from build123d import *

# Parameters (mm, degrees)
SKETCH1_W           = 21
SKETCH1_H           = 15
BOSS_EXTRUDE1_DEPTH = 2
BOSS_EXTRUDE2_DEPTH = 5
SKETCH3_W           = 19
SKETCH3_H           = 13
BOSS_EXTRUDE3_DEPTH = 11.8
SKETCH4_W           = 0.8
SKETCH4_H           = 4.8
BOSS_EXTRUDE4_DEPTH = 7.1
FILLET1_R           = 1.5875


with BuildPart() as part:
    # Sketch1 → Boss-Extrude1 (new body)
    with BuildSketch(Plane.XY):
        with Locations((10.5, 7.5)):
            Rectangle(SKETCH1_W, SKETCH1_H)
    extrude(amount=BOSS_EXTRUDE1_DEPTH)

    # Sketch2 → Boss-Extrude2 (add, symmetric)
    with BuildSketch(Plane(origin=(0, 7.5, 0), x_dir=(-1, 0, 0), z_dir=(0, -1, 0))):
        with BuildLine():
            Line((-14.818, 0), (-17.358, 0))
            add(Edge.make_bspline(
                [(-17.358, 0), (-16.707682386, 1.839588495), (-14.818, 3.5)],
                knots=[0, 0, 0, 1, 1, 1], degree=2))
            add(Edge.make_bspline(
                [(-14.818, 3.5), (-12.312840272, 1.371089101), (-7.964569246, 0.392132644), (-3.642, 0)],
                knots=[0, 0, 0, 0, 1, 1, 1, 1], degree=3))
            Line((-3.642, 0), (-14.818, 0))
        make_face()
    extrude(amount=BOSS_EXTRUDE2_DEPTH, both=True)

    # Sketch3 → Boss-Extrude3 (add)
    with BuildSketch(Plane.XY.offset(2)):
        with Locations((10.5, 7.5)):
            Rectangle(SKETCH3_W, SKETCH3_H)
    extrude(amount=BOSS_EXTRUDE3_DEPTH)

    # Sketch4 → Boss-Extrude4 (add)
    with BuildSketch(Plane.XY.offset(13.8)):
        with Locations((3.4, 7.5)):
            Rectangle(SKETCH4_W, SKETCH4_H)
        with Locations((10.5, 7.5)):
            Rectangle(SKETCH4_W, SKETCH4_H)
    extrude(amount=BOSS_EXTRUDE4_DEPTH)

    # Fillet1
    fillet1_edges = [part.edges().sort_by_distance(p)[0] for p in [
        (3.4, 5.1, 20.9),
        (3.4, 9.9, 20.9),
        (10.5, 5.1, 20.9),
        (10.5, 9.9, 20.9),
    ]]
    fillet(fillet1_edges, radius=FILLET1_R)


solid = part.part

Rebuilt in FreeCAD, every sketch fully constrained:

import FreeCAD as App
import Part
import Sketcher

V = App.Vector
Q = App.Units.Quantity


def edges_at(feature, points):
    """Names of the edges that pass closest to the given points."""
    edges = feature.Shape.Edges
    near = lambda p: min(range(len(edges)), key=lambda i: edges[i].distToShape(Part.Vertex(*p))[0])
    return sorted({f"Edge{near(p) + 1}" for p in points})

doc = App.newDocument("Part")
body = doc.addObject("PartDesign::Body", "Body")

# Sketch on XY plane
sketch1 = body.newObject("Sketcher::SketchObject", "Sketch")
sketch1.AttachmentSupport = (doc.getObject("XY_Plane"), [""])
sketch1.MapMode = "FlatFace"
sketch1.addGeometry([
    Part.LineSegment(V(0, 15, 0), V(0, 0, 0)),
    Part.LineSegment(V(0, 0, 0), V(21, 0, 0)),
    Part.LineSegment(V(21, 0, 0), V(21, 15, 0)),
    Part.LineSegment(V(21, 15, 0), V(0, 15, 0)),
], False)
sketch1.addConstraint([
    Sketcher.Constraint("Coincident", 0, 2, 1, 1),
    Sketcher.Constraint("Coincident", 1, 2, 2, 1),
    Sketcher.Constraint("Coincident", 2, 2, 3, 1),
    Sketcher.Constraint("Coincident", 3, 2, 0, 1),
    Sketcher.Constraint("Vertical", 0),
    Sketcher.Constraint("Horizontal", 1),
    Sketcher.Constraint("Vertical", 2),
    Sketcher.Constraint("Horizontal", 3),
    Sketcher.Constraint("Coincident", 0, 2, -1, 1),
    Sketcher.Constraint("DistanceX", 1, 1, 1, 2, Q("21 mm")),
    Sketcher.Constraint("DistanceY", 0, 2, 0, 1, Q("15 mm")),
])
pad1 = body.newObject("PartDesign::Pad", "Pad")
pad1.Profile = sketch1
pad1.Length = 2

# Sketch on XZ plane
sketch2 = body.newObject("Sketcher::SketchObject", "Sketch001")
sketch2.AttachmentSupport = (doc.getObject("XZ_Plane"), [""])
sketch2.MapMode = "FlatFace"
sketch2.AttachmentOffset = App.Placement(V(0, 0, -7.5), App.Rotation())
sketch2.addGeometry([
    Part.BSplineCurve([V(17.358, 0, 0), V(16.707682, -1.839588, 0), V(14.818, -3.5, 0)], [3, 3], [0, 1], False, 2, [1, 1, 1], False),
    Part.LineSegment(V(17.358, 0, 0), V(3.642, 0, 0)),
    Part.BSplineCurve([V(14.818, -3.5, 0), V(12.31284, -1.371089, 0), V(7.964569, -0.392133, 0), V(3.642, 0, 0)], [4, 4], [0, 1], False, 3, [1, 1, 1, 1], False),
], False)
sketch2.addConstraint([
    Sketcher.Constraint("Block", 0),
    Sketcher.Constraint("Block", 2),
    Sketcher.Constraint("Coincident", 0, 1, 1, 1),
    Sketcher.Constraint("Coincident", 1, 2, 2, 2),
])
pad2 = body.newObject("PartDesign::Pad", "Pad001")
pad2.Profile = sketch2
pad2.Length = 10
pad2.Midplane = True

# Sketch on XY plane
sketch3 = body.newObject("Sketcher::SketchObject", "Sketch002")
sketch3.AttachmentSupport = (doc.getObject("XY_Plane"), [""])
sketch3.MapMode = "FlatFace"
sketch3.AttachmentOffset = App.Placement(V(0, 0, 2), App.Rotation())
sketch3.addGeometry([
    Part.LineSegment(V(1, 14, 0), V(1, 1, 0)),
    Part.LineSegment(V(1, 1, 0), V(20, 1, 0)),
    Part.LineSegment(V(20, 1, 0), V(20, 14, 0)),
    Part.LineSegment(V(20, 14, 0), V(1, 14, 0)),
], False)
sketch3.addConstraint([
    Sketcher.Constraint("Coincident", 0, 2, 1, 1),
    Sketcher.Constraint("Coincident", 1, 2, 2, 1),
    Sketcher.Constraint("Coincident", 2, 2, 3, 1),
    Sketcher.Constraint("Coincident", 3, 2, 0, 1),
    Sketcher.Constraint("Vertical", 0),
    Sketcher.Constraint("Horizontal", 1),
    Sketcher.Constraint("Vertical", 2),
    Sketcher.Constraint("Horizontal", 3),
    Sketcher.Constraint("DistanceX", 1, 1, 1, 2, Q("19 mm")),
    Sketcher.Constraint("DistanceY", 0, 2, 0, 1, Q("13 mm")),
    Sketcher.Constraint("DistanceX", -1, 1, 0, 2, Q("1 mm")),
    Sketcher.Constraint("DistanceY", -1, 1, 0, 2, Q("1 mm")),
])
pad3 = body.newObject("PartDesign::Pad", "Pad002")
pad3.Profile = sketch3
pad3.Length = 11.8

# Sketch on XY plane
sketch4 = body.newObject("Sketcher::SketchObject", "Sketch003")
sketch4.AttachmentSupport = (doc.getObject("XY_Plane"), [""])
sketch4.MapMode = "FlatFace"
sketch4.AttachmentOffset = App.Placement(V(0, 0, 13.8), App.Rotation())
sketch4.addGeometry([
    Part.LineSegment(V(3, 9.9, 0), V(3, 5.1, 0)),  # 0
    Part.LineSegment(V(3, 5.1, 0), V(3.8, 5.1, 0)),  # 1
    Part.LineSegment(V(3.8, 5.1, 0), V(3.8, 9.9, 0)),  # 2
    Part.LineSegment(V(3.8, 9.9, 0), V(3, 9.9, 0)),  # 3
    Part.LineSegment(V(10.1, 9.9, 0), V(10.1, 5.1, 0)),  # 4
    Part.LineSegment(V(10.1, 5.1, 0), V(10.9, 5.1, 0)),  # 5
    Part.LineSegment(V(10.9, 5.1, 0), V(10.9, 9.9, 0)),  # 6
    Part.LineSegment(V(10.9, 9.9, 0), V(10.1, 9.9, 0)),  # 7
], False)
sketch4.addConstraint([
    Sketcher.Constraint("Coincident", 0, 2, 1, 1),
    Sketcher.Constraint("Coincident", 1, 2, 2, 1),
    Sketcher.Constraint("Coincident", 2, 2, 3, 1),
    Sketcher.Constraint("Coincident", 3, 2, 0, 1),
    Sketcher.Constraint("Coincident", 4, 2, 5, 1),
    Sketcher.Constraint("Coincident", 5, 2, 6, 1),
    Sketcher.Constraint("Coincident", 6, 2, 7, 1),
    Sketcher.Constraint("Coincident", 7, 2, 4, 1),
    Sketcher.Constraint("Vertical", 0),
    Sketcher.Constraint("Horizontal", 1),
    Sketcher.Constraint("Vertical", 2),
    Sketcher.Constraint("Horizontal", 3),
    Sketcher.Constraint("Vertical", 4),
    Sketcher.Constraint("Horizontal", 5),
    Sketcher.Constraint("Vertical", 6),
    Sketcher.Constraint("Horizontal", 7),
    Sketcher.Constraint("Horizontal", 1, 2, 4, 2),
    Sketcher.Constraint("Horizontal", 3, 2, 6, 2),
    Sketcher.Constraint("Equal", 3, 5),
    Sketcher.Constraint("DistanceX", 1, 1, 1, 2, Q("0.8 mm")),
    Sketcher.Constraint("DistanceY", 0, 2, 0, 1, Q("4.8 mm")),
    Sketcher.Constraint("DistanceX", -1, 1, 0, 2, Q("3 mm")),
    Sketcher.Constraint("DistanceY", -1, 1, 0, 2, Q("5.1 mm")),
    Sketcher.Constraint("DistanceX", -1, 1, 4, 2, Q("10.1 mm")),
])
pad4 = body.newObject("PartDesign::Pad", "Pad003")
pad4.Profile = sketch4
pad4.Length = 7.1
doc.recompute()

fillet = body.newObject("PartDesign::Fillet", "Fillet")
fillet.Base = (pad4, edges_at(pad4, [
    (3.4, 5.1, 20.9),
    (3.4, 9.9, 20.9),
    (10.5, 5.1, 20.9),
    (10.5, 9.9, 20.9),
]))
fillet.Radius = 1.5875

doc.recompute()
